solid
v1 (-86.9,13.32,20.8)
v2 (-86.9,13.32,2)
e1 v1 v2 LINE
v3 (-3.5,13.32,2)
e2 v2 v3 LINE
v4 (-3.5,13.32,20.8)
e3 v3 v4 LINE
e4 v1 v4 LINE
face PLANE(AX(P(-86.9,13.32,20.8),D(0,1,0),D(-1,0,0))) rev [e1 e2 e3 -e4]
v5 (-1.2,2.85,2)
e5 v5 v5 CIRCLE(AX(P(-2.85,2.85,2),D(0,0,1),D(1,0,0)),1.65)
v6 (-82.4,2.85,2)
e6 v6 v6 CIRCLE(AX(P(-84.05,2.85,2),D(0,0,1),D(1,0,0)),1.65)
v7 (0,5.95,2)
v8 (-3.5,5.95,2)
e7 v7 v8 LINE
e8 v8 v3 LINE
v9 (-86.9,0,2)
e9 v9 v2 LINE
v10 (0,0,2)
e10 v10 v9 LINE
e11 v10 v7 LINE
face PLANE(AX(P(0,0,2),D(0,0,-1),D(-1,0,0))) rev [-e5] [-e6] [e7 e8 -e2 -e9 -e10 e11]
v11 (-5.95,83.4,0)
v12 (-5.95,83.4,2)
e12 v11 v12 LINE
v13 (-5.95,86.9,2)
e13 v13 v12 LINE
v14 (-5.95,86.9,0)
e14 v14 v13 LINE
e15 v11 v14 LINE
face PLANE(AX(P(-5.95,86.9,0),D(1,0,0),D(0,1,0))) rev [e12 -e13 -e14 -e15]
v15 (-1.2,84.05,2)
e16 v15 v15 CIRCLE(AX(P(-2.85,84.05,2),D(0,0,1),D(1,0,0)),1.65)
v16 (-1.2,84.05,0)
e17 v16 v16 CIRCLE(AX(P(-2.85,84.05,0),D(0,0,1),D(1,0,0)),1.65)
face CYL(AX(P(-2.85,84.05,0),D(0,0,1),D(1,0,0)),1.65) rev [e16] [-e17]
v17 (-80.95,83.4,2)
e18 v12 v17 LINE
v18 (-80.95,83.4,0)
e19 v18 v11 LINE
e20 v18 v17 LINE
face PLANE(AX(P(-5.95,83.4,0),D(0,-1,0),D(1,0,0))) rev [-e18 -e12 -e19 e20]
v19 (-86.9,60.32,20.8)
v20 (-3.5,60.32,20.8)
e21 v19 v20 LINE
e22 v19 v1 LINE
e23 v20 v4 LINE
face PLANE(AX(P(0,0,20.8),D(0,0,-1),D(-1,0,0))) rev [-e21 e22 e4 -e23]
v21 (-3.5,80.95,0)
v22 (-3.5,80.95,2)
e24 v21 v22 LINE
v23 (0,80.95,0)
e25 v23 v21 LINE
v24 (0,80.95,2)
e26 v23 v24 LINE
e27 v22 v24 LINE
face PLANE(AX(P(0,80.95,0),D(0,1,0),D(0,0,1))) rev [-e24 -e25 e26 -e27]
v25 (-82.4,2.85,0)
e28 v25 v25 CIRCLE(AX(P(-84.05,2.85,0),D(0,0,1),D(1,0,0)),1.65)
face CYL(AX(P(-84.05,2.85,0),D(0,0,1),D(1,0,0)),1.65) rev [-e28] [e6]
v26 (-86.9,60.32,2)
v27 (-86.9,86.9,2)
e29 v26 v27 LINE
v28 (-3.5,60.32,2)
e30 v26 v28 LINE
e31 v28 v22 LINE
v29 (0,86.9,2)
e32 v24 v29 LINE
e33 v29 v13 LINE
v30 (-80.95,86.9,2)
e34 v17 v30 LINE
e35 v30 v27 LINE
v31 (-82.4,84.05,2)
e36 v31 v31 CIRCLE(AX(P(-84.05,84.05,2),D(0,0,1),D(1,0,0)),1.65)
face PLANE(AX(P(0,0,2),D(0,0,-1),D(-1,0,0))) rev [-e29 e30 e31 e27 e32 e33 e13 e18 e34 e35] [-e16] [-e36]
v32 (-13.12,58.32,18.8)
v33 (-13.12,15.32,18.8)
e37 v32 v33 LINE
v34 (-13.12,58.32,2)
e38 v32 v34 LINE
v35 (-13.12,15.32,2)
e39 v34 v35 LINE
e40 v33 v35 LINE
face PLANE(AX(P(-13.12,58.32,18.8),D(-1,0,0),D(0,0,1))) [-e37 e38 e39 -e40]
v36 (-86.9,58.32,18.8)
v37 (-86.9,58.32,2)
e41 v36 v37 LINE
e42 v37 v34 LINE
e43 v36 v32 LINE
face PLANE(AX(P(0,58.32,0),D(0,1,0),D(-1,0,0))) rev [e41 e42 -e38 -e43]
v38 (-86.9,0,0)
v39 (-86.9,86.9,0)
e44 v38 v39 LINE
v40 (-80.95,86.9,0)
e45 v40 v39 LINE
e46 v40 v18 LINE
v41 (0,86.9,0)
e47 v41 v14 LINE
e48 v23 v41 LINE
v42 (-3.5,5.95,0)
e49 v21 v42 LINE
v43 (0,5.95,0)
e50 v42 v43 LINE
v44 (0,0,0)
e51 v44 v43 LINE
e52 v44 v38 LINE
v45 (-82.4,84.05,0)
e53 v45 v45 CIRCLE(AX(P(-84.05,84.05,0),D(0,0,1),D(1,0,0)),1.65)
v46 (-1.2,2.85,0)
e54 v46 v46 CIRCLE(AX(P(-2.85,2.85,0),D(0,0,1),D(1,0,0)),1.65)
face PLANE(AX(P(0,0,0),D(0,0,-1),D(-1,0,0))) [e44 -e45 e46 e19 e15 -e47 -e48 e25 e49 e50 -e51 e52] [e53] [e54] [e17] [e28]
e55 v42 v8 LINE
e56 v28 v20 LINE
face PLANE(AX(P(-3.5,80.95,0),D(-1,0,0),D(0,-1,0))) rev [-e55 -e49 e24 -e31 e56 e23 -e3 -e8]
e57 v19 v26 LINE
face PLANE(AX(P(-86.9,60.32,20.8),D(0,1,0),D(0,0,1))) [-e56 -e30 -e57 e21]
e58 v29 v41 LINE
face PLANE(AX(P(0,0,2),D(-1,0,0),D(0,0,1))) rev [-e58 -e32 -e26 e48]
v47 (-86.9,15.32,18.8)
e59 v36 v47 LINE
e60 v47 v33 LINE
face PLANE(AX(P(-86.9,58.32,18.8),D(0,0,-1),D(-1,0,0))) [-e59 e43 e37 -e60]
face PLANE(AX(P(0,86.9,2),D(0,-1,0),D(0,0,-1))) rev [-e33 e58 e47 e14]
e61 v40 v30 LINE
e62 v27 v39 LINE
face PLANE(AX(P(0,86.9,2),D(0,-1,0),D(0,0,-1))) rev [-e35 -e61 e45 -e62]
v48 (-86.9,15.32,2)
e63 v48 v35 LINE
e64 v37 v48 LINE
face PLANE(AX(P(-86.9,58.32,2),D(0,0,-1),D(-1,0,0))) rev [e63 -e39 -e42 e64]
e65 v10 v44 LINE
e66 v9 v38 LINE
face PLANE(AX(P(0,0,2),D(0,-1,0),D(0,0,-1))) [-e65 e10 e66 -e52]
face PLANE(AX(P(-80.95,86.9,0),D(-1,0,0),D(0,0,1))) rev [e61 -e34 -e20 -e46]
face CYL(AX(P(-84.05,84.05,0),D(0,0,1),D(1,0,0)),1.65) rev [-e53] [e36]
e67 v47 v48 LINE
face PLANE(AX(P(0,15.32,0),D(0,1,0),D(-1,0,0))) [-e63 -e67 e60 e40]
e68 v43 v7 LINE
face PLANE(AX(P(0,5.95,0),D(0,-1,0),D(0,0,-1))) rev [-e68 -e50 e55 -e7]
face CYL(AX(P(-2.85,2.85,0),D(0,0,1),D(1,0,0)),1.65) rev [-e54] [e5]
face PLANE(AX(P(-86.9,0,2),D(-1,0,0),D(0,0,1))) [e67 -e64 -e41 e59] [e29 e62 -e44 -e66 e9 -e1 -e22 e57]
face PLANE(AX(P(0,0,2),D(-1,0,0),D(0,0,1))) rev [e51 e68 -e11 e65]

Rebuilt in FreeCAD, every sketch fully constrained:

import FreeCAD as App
import Part
import Sketcher
from FreeCAD import Vector
Q = App.Units.Quantity

doc = App.newDocument("Part")
body = doc.addObject("PartDesign::Body", "Body")

sketch1 = body.newObject("Sketcher::SketchObject", "Sketch")
sketch1.AttachmentSupport = (doc.getObject("XY_Plane"), [""])
sketch1.MapMode = "FlatFace"
sketch1.addGeometry([
    Part.LineSegment(Vector(-86.9, 0, 0), Vector(0, 0, 0)),
    Part.LineSegment(Vector(0, 0, 0), Vector(0, 86.9, 0)),
    Part.LineSegment(Vector(0, 86.9, 0), Vector(-86.9, 86.9, 0)),
    Part.LineSegment(Vector(-86.9, 86.9, 0), Vector(-86.9, 0, 0)),
], False)
sketch1.addConstraint([
    Sketcher.Constraint("Coincident", 0, 2, 1, 1),
    Sketcher.Constraint("Coincident", 1, 2, 2, 1),
    Sketcher.Constraint("Coincident", 2, 2, 3, 1),
    Sketcher.Constraint("Coincident", 3, 2, 0, 1),
    Sketcher.Constraint("Horizontal", 0),
    Sketcher.Constraint("Vertical", 1),
    Sketcher.Constraint("Horizontal", 2),
    Sketcher.Constraint("Vertical", 3),
    Sketcher.Constraint("Coincident", 0, 2, -1, 1),
    Sketcher.Constraint("Equal", 2, 1),
    Sketcher.Constraint("DistanceX", 0, 1, 0, 2, Q("86.9 mm")),
])
pad1 = body.newObject("PartDesign::Pad", "Pad")
pad1.Profile = sketch1
pad1.Length = 2

sketch2 = body.newObject("Sketcher::SketchObject", "Sketch001")
sketch2.AttachmentSupport = (doc.getObject("XY_Plane"), [""])
sketch2.MapMode = "FlatFace"
sketch2.AttachmentOffset = App.Placement(Vector(0, 0, 2), App.Rotation())
sketch2.addGeometry([
    Part.Circle(Vector(-84.05, 2.85, 0), Vector(0, 0, 1), 1.65),
    Part.Circle(Vector(-2.85, 2.85, 0), Vector(0, 0, 1), 1.65),
    Part.Circle(Vector(-2.85, 84.05, 0), Vector(0, 0, 1), 1.65),
    Part.Circle(Vector(-84.05, 84.05, 0), Vector(0, 0, 1), 1.65),
], False)
sketch2.addConstraint([
    Sketcher.Constraint("Equal", 0, 1),
    Sketcher.Constraint("Equal", 1, 2),
    Sketcher.Constraint("Equal", 2, 3),
    Sketcher.Constraint("Horizontal", 0, 3, 1, 3),
    Sketcher.Constraint("Horizontal", 2, 3, 3, 3),
    Sketcher.Constraint("Vertical", 1, 3, 2, 3),
    Sketcher.Constraint("Vertical", 0, 3, 3, 3),
    Sketcher.Constraint("Diameter", 0, Q("3.3 mm")),
    Sketcher.Constraint("DistanceX", 0, 3, 1, 3, Q("81.2 mm")),
    Sketcher.Constraint("DistanceY", 1, 3, 2, 3, Q("81.2 mm")),
    Sketcher.Constraint("DistanceX", 0, 3, -1, 1, Q("84.05 mm")),
    Sketcher.Constraint("DistanceY", -1, 1, 0, 3, Q("2.85 mm")),
])
pocket1 = body.newObject("PartDesign::Pocket", "Pocket")
pocket1.Profile = sketch2
pocket1.Type = "ThroughAll"

sketch3 = body.newObject("Sketcher::SketchObject", "Sketch002")
sketch3.AttachmentSupport = (doc.getObject("XY_Plane"), [""])
sketch3.MapMode = "FlatFace"
sketch3.AttachmentOffset = App.Placement(Vector(0, 0, 2), App.Rotation())
sketch3.addGeometry([
    Part.LineSegment(Vector(-86.9, 60.32, 0), Vector(-86.9, 13.32, 0)),
    Part.LineSegment(Vector(-86.9, 13.32, 0), Vector(0, 13.32, 0)),
    Part.LineSegment(Vector(0, 13.32, 0), Vector(0, 60.32, 0)),
    Part.LineSegment(Vector(0, 60.32, 0), Vector(-86.9, 60.32, 0)),
], False)
sketch3.addConstraint([
    Sketcher.Constraint("Coincident", 0, 2, 1, 1),
    Sketcher.Constraint("Coincident", 1, 2, 2, 1),
    Sketcher.Constraint("Coincident", 2, 2, 3, 1),
    Sketcher.Constraint("Coincident", 3, 2, 0, 1),
    Sketcher.Constraint("Vertical", 0),
    Sketcher.Constraint("Horizontal", 1),
    Sketcher.Constraint("Vertical", 2),
    Sketcher.Constraint("Horizontal", 3),
    Sketcher.Constraint("PointOnObject", 1, 2, -2),
    Sketcher.Constraint("DistanceY", 0, 2, 0, 1, Q("47 mm")),
    Sketcher.Constraint("DistanceX", 1, 1, 1, 2, Q("86.9 mm")),
    Sketcher.Constraint("DistanceY", -1, 1, 0, 2, Q("13.32 mm")),
])
pad2 = body.newObject("PartDesign::Pad", "Pad001")
pad2.Profile = sketch3
pad2.Length = 18.8

sketch4 = body.newObject("Sketcher::SketchObject", "Sketch003")
sketch4.AttachmentSupport = (doc.getObject("XZ_Plane"), [""])
sketch4.MapMode = "FlatFace"
sketch4.AttachmentOffset = App.Placement(Vector(0, 0, -15.32), App.Rotation())
sketch4.addGeometry([
    Part.LineSegment(Vector(-86.9, 18.8, 0), Vector(-86.9, 2, 0)),
    Part.LineSegment(Vector(-86.9, 2, 0), Vector(-13.12, 2, 0)),
    Part.LineSegment(Vector(-13.12, 2, 0), Vector(-13.12, 18.8, 0)),
    Part.LineSegment(Vector(-13.12, 18.8, 0), Vector(-86.9, 18.8, 0)),
], False)
sketch4.addConstraint([
    Sketcher.Constraint("Coincident", 0, 2, 1, 1),
    Sketcher.Constraint("Coincident", 1, 2, 2, 1),
    Sketcher.Constraint("Coincident", 2, 2, 3, 1),
    Sketcher.Constraint("Coincident", 3, 2, 0, 1),
    Sketcher.Constraint("Vertical", 0),
    Sketcher.Constraint("Horizontal", 1),
    Sketcher.Constraint("Vertical", 2),
    Sketcher.Constraint("Horizontal", 3),
    Sketcher.Constraint("DistanceY", 0, 2, 0, 1, Q("16.8 mm")),
    Sketcher.Constraint("DistanceY", -1, 1, 0, 2, Q("2 mm")),
    Sketcher.Constraint("DistanceX", 1, 1, 1, 2, Q("73.78 mm")),
    Sketcher.Constraint("DistanceX", 0, 2, -1, 1, Q("86.9 mm")),
])
pocket2 = body.newObject("PartDesign::Pocket", "Pocket001")
pocket2.Profile = sketch4
pocket2.Length = 43

sketch5 = body.newObject("Sketcher::SketchObject", "Sketch004")
sketch5.AttachmentSupport = (doc.getObject("XY_Plane"), [""])
sketch5.MapMode = "FlatFace"
sketch5.AttachmentOffset = App.Placement(Vector(0, 0, 2), App.Rotation())
sketch5.addGeometry([
    Part.LineSegment(Vector(-3.5, 80.95, 0), Vector(-3.5, 5.95, 0)),
    Part.LineSegment(Vector(-3.5, 5.95, 0), Vector(0, 5.95, 0)),
    Part.LineSegment(Vector(0, 5.95, 0), Vector(0, 80.95, 0)),
    Part.LineSegment(Vector(0, 80.95, 0), Vector(-3.5, 80.95, 0)),
    Part.LineSegment(Vector(-80.95, 86.9, 0), Vector(-80.95, 83.4, 0)),
    Part.LineSegment(Vector(-80.95, 83.4, 0), Vector(-5.95, 83.4, 0)),
    Part.LineSegment(Vector(-5.95, 83.4, 0), Vector(-5.95, 86.9, 0)),
    Part.LineSegment(Vector(-5.95, 86.9, 0), Vector(-80.95, 86.9, 0)),
], False)
sketch5.addConstraint([
    Sketcher.Constraint("Coincident", 0, 2, 1, 1),
    Sketcher.Constraint("Coincident", 1, 2, 2, 1),
    Sketcher.Constraint("Coincident", 2, 2, 3, 1),
    Sketcher.Constraint("Coincident", 3, 2, 0, 1),
    Sketcher.Constraint("Coincident", 4, 2, 5, 1),
    Sketcher.Constraint("Coincident", 5, 2, 6, 1),
    Sketcher.Constraint("Coincident", 6, 2, 7, 1),
    Sketcher.Constraint("Coincident", 7, 2, 4, 1),
    Sketcher.Constraint("Vertical", 0),
    Sketcher.Constraint("Horizontal", 1),
    Sketcher.Constraint("Vertical", 2),
    Sketcher.Constraint("Horizontal", 3),
    Sketcher.Constraint("Vertical", 4),
    Sketcher.Constraint("Horizontal", 5),
    Sketcher.Constraint("Vertical", 6),
    Sketcher.Constraint("Horizontal", 7),
    Sketcher.Constraint("PointOnObject", 1, 2, -2),
    Sketcher.Constraint("Equal", 7, 0),
    Sketcher.Constraint("Equal", 3, 4),
    Sketcher.Constraint("DistanceX", 5, 1, 5, 2, Q("75 mm")),
    Sketcher.Constraint("DistanceX", 1, 1, 1, 2, Q("3.5 mm")),
    Sketcher.Constraint("DistanceY", -1, 1, 4, 2, Q("83.4 mm")),
    Sketcher.Constraint("DistanceY", -1, 1, 0, 2, Q("5.95 mm")),
    Sketcher.Constraint("DistanceX", 4, 2, -1, 1, Q("80.95 mm")),
])
pocket3 = body.newObject("PartDesign::Pocket", "Pocket002")
pocket3.Profile = sketch5
pocket3.Type = "ThroughAll"
pocket3.Midplane = True

doc.recompute()
